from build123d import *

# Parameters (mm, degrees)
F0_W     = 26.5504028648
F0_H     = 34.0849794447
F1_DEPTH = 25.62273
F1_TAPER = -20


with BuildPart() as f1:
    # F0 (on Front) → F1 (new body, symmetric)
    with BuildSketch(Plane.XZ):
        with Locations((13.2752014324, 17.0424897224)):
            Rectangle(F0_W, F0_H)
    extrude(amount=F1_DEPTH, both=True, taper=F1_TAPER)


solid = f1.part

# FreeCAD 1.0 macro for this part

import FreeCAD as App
import Part
import Sketcher
from FreeCAD import Vector
Q = App.Units.Quantity

doc = App.newDocument("Part")
body = doc.addObject("PartDesign::Body", "Body")

sketch1 = doc.addObject("Sketcher::SketchObject", "Sketch")
body.addObject(sketch1)
sketch1.AttachmentSupport = (doc.XZ_Plane, [""])
sketch1.MapMode = "FlatFace"
sketch1.addGeometry([
    Part.LineSegment(Vector(0, 34, 0), Vector(0, 0, 0)),
    Part.LineSegment(Vector(0, 0, 0), Vector(27, 0, 0)),
    Part.LineSegment(Vector(27, 0, 0), Vector(27, 34, 0)),
    Part.LineSegment(Vector(27, 34, 0), Vector(0, 34, 0)),
], False)
sketch1.addConstraint([
    Sketcher.Constraint("Coincident", 0, 2, 1, 1),
    Sketcher.Constraint("Coincident", 1, 2, 2, 1),
    Sketcher.Constraint("Coincident", 2, 2, 3, 1),
    Sketcher.Constraint("Coincident", 3, 2, 0, 1),
    Sketcher.Constraint("Vertical", 0),
    Sketcher.Constraint("Horizontal", 1),
    Sketcher.Constraint("Vertical", 2),
    Sketcher.Constraint("Horizontal", 3),
    Sketcher.Constraint("Coincident", 0, 2, -1, 1),
    Sketcher.Constraint("DistanceY", 0, 2, 0, 1, Q("34.084979 mm")),
    Sketcher.Constraint("DistanceX", 1, 1, 1, 2, Q("26.550403 mm")),
])
pad1 = doc.addObject("PartDesign::Pad", "Pad")
body.addObject(pad1)
pad1.Profile = sketch1
pad1.Length = 51.24546
pad1.Midplane = True
pad1.TaperAngle = 20

doc.recompute()
